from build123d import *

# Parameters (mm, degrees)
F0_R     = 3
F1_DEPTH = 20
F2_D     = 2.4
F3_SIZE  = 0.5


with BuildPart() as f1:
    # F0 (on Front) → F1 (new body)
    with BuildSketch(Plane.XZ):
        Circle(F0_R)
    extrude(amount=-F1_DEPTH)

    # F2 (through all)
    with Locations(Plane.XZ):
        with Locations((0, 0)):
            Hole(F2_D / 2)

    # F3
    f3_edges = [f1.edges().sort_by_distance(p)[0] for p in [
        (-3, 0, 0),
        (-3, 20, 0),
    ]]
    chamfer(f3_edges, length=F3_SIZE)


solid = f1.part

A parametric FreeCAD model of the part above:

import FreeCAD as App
import Part
import Sketcher


def edges_at(feature, points):
    """Names of the edges that pass closest to the given points."""
    edges = feature.Shape.Edges
    near = lambda p: min(range(len(edges)), key=lambda i: edges[i].distToShape(Part.Vertex(*p))[0])
    return sorted({f"Edge{near(p) + 1}" for p in points})

doc = App.newDocument("Part")
params = doc.addObject("Spreadsheet::Sheet", "Params")
for row, (alias, value) in enumerate([
    ("sketch1_diameter", "6 mm"),
    ("pad1_length", "20 mm"),
    ("sketch2_diameter", "2.4 mm"),
    ("hole_diameter", "2.4 mm"),
    ("chamfer_size", "0.5 mm"),
], start=1):
    params.set(f"A{row}", alias)
    params.set(f"B{row}", "=" + value)
    params.setAlias(f"B{row}", alias)

body = doc.addObject("PartDesign::Body", "Body")

# Sketch on XZ plane
sketch1 = doc.addObject("Sketcher::SketchObject", "Sketch")
body.addObject(sketch1)
sketch1.AttachmentSupport = (doc.XZ_Plane, [""])
sketch1.MapMode = "FlatFace"
sketch1.addGeometry(Part.Circle(App.Vector(0, 0, 0), App.Vector(0, 0, 1), 3), False)
sketch1.addConstraint(Sketcher.Constraint("Coincident", 0, 3, -1, 1))
sketch1.addConstraint(Sketcher.Constraint("Diameter", 0, 6.0))
sketch1.setExpression("Constraints[1]", "Params.sketch1_diameter")
pad1 = doc.addObject("PartDesign::Pad", "Pad")
body.addObject(pad1)
pad1.Profile = sketch1
pad1.setExpression("Length", "Params.pad1_length")
pad1.Reversed = True

# Sketch on XZ plane
sketch2 = doc.addObject("Sketcher::SketchObject", "Sketch001")
body.addObject(sketch2)
sketch2.AttachmentSupport = (doc.XZ_Plane, [""])
sketch2.MapMode = "FlatFace"
sketch2.addGeometry(Part.Circle(App.Vector(0, 0, 0), App.Vector(0, 0, 1), 1.2), False)
sketch2.addConstraint(Sketcher.Constraint("Coincident", 0, 3, -1, 1))
sketch2.addConstraint(Sketcher.Constraint("Diameter", 0, 2.4))
sketch2.setExpression("Constraints[1]", "Params.sketch2_diameter")
doc.recompute()
hole = doc.addObject("PartDesign::Hole", "Hole")
body.addObject(hole)
hole.Profile = sketch2
hole.ThreadType = "None"
hole.setExpression("Diameter", "Params.hole_diameter")
hole.DepthType = "ThroughAll"
doc.recompute()

chamfer = doc.addObject("PartDesign::Chamfer", "Chamfer")
body.addObject(chamfer)
chamfer.Base = (hole, edges_at(hole, [(-3, 0, 0), (-3, 20, 0)]))
chamfer.setExpression("Size", "Params.chamfer_size")

doc.recompute()
